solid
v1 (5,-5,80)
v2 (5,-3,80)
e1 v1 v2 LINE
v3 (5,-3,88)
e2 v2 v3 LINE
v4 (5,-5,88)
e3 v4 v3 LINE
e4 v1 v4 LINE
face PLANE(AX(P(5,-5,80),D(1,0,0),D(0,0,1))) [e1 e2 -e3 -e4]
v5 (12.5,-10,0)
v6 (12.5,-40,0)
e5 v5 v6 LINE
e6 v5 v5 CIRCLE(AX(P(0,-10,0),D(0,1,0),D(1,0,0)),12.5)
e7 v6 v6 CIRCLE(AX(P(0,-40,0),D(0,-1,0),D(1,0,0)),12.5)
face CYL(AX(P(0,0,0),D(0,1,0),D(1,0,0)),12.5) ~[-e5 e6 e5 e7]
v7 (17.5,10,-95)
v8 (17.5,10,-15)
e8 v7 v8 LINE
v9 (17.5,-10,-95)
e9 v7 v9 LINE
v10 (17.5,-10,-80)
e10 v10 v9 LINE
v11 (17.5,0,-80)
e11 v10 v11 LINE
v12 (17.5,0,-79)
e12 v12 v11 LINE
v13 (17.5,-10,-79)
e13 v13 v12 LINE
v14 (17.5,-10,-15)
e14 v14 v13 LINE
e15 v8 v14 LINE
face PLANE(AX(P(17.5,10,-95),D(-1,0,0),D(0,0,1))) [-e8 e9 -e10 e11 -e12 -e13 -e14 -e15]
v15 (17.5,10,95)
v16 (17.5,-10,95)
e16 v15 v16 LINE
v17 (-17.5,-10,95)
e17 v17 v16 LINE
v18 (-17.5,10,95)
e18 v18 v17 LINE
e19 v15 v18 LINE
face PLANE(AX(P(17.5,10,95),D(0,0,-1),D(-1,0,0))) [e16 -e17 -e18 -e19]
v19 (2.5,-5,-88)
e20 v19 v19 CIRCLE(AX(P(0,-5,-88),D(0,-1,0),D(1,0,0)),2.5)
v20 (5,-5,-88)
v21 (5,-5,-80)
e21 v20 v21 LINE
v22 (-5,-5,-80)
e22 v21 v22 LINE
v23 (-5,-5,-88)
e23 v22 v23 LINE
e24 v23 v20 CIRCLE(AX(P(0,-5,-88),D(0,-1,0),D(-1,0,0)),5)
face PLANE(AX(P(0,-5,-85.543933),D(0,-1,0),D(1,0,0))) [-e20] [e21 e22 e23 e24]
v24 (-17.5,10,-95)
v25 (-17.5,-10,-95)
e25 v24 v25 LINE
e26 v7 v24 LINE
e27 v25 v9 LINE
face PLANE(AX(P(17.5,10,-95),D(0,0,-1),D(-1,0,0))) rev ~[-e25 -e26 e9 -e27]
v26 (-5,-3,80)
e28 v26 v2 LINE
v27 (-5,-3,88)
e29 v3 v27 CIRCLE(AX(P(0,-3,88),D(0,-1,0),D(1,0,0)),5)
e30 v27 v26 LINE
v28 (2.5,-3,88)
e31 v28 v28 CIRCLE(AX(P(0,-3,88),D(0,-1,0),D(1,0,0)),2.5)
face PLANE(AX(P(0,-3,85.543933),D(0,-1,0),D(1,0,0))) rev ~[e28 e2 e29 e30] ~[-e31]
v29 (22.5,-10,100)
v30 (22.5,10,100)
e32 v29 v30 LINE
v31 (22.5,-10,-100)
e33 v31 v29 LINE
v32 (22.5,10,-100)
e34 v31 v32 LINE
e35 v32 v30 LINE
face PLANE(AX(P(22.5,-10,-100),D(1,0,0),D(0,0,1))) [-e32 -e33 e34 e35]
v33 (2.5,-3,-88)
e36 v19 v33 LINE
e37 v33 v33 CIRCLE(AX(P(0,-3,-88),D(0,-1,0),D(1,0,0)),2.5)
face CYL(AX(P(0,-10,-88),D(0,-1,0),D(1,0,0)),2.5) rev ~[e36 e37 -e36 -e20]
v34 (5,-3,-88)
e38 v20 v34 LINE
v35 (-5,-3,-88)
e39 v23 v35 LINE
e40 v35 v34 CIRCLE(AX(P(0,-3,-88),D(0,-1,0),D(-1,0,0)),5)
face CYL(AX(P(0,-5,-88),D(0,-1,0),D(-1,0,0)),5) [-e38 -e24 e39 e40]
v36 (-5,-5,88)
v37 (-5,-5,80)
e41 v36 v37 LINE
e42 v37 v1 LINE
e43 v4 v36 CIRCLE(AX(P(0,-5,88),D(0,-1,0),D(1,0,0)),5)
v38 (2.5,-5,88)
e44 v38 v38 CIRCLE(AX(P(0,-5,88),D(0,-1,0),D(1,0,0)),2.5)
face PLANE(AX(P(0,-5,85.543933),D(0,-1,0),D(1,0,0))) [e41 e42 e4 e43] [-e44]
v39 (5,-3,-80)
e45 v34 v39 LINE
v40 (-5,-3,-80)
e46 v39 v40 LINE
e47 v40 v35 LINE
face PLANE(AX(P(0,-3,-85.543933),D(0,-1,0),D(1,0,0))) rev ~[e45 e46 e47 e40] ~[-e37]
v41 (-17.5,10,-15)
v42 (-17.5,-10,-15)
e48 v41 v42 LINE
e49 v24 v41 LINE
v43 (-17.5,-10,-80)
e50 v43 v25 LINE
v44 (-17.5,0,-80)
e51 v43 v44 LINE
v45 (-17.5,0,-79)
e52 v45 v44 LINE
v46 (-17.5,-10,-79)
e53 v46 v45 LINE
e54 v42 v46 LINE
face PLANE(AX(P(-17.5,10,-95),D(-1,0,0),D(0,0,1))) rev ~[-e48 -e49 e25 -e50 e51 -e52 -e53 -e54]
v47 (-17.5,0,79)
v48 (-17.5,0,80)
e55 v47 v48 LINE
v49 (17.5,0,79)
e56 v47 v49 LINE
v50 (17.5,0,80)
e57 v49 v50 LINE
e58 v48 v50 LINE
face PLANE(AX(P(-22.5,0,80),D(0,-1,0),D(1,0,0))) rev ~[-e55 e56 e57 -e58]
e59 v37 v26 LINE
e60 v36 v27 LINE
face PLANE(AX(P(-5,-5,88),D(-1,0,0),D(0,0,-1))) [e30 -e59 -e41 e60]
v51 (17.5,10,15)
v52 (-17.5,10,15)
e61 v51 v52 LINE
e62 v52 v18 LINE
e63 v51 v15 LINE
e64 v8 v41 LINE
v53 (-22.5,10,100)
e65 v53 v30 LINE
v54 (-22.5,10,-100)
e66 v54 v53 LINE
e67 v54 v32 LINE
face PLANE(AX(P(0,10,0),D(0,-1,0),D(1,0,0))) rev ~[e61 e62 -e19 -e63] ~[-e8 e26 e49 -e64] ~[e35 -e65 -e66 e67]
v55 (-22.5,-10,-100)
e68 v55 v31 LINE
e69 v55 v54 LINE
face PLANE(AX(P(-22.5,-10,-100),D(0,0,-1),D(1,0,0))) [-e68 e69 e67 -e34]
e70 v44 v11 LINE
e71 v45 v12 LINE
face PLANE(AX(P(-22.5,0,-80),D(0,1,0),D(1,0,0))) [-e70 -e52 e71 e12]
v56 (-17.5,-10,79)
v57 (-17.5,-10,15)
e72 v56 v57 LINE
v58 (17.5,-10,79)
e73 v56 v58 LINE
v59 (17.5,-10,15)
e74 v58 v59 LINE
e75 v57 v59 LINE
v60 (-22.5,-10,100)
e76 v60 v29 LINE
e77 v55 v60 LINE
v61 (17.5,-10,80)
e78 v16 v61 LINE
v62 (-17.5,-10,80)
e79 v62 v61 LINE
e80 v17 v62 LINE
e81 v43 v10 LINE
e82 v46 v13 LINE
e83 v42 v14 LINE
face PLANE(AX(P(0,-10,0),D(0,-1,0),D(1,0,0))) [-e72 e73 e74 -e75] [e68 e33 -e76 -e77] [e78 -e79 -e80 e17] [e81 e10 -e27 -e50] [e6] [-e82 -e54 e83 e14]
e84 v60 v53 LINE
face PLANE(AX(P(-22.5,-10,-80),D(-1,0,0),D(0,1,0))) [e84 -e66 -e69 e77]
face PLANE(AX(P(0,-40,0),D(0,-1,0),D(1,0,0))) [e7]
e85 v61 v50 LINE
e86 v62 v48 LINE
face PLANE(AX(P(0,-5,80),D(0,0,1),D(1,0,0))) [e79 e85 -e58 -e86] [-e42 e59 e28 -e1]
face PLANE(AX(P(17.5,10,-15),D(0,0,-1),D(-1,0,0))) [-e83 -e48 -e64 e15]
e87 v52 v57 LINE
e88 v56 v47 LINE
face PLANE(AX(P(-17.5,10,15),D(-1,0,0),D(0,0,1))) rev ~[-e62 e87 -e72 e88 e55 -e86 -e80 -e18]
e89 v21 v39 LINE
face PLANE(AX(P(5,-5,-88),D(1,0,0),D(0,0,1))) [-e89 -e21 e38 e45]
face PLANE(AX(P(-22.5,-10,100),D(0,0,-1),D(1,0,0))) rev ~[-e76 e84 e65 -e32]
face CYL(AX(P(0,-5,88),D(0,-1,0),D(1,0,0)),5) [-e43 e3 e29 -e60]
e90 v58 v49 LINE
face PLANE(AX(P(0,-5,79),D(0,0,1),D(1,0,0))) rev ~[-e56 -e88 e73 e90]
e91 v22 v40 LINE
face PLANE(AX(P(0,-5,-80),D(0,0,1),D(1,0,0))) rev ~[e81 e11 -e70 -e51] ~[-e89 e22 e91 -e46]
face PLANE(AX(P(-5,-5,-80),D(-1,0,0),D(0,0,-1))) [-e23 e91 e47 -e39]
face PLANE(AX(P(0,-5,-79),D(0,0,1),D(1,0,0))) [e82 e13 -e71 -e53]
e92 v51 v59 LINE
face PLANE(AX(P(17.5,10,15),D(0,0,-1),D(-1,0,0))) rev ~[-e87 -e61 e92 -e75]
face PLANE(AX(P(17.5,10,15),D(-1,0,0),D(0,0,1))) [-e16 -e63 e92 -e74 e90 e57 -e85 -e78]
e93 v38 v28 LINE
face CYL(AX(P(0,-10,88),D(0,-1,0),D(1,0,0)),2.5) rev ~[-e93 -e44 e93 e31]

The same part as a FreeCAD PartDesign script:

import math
import FreeCAD as App
import Part
import Sketcher

V = App.Vector


def add_polygon(sketch, points):
    """Adds a closed chain of lines whose ends are joined by coincident constraints."""
    first, n = sketch.GeometryCount, len(points)
    for a, b in zip(points, points[1:] + points[:1]):
        sketch.addGeometry(Part.LineSegment(App.Vector(*a, 0), App.Vector(*b, 0)), False)
    for i in range(n):
        sketch.addConstraint(Sketcher.Constraint("Coincident", first + i, 2, first + (i + 1) % n, 1))

doc = App.newDocument("Part")
body = doc.addObject("PartDesign::Body", "Body")

# Sketch on XZ plane
sketch1 = body.newObject("Sketcher::SketchObject", "Sketch")
sketch1.AttachmentSupport = (doc.getObject("XZ_Plane"), [""])
sketch1.MapMode = "FlatFace"
sketch1.addGeometry(Part.Circle(V(0, 0, 0), V(0, 0, 1), 12), False)
sketch1.addConstraint([
    Sketcher.Constraint("Coincident", 0, 3, -1, 1),
    Sketcher.Constraint("Diameter", 0, 25.0),
])
pad1 = body.newObject("PartDesign::Pad", "Pad")
pad1.Profile = sketch1
pad1.Length = 40

# Sketch on XZ plane
sketch2 = body.newObject("Sketcher::SketchObject", "Sketch001")
sketch2.AttachmentSupport = (doc.getObject("XZ_Plane"), [""])
sketch2.MapMode = "FlatFace"
sketch2.AttachmentOffset = App.Placement(V(0, 0, 10), App.Rotation())
add_polygon(sketch2, [(-22, 100), (-22, -100), (22, -100), (22, 100)])  # lines 0-3
sketch2.addConstraint([
    Sketcher.Constraint("Vertical", 0),
    Sketcher.Constraint("Horizontal", 1),
    Sketcher.Constraint("Vertical", 2),
    Sketcher.Constraint("Horizontal", 3),
    Sketcher.Constraint("Symmetric", 0, 2, 2, 2, -1, 1),
    Sketcher.Constraint("DistanceX", 1, 1, 1, 2, 45.0),
    Sketcher.Constraint("DistanceY", 0, 2, 0, 1, 200.0),
])
pad2 = body.newObject("PartDesign::Pad", "Pad001")
pad2.Profile = sketch2
pad2.Length = 20
pad2.Reversed = True

# Sketch on XZ plane
sketch3 = body.newObject("Sketcher::SketchObject", "Sketch002")
sketch3.AttachmentSupport = (doc.getObject("XZ_Plane"), [""])
sketch3.MapMode = "FlatFace"
sketch3.AttachmentOffset = App.Placement(V(0, 0, -10), App.Rotation())
add_polygon(sketch3, [(18, 95), (18, 15), (-18, 15), (-18, 95)])  # lines 0-3
add_polygon(sketch3, [(18, -15), (18, -95), (-18, -95), (-18, -15)])  # lines 4-7
sketch3.addConstraint([
    Sketcher.Constraint("Vertical", 0),
    Sketcher.Constraint("Horizontal", 1),
    Sketcher.Constraint("Vertical", 2),
    Sketcher.Constraint("Horizontal", 3),
    Sketcher.Constraint("Vertical", 4),
    Sketcher.Constraint("Horizontal", 5),
    Sketcher.Constraint("Vertical", 6),
    Sketcher.Constraint("Horizontal", 7),
    Sketcher.Constraint("Symmetric", 2, 2, 4, 2, -1, 1),
    Sketcher.Constraint("Symmetric", 0, 2, 6, 2, -1, 1),
    Sketcher.Constraint("Vertical", 3, 2, 4, 2),
    Sketcher.Constraint("DistanceX", 1, 2, 1, 1, 35.0),
    Sketcher.Constraint("DistanceY", 0, 2, 0, 1, 80.0),
    Sketcher.Constraint("DistanceY", -1, 1, 0, 2, 15.0),
])
pocket1 = body.newObject("PartDesign::Pocket", "Pocket")
pocket1.Profile = sketch3
pocket1.Length = 25
pocket1.Reversed = True

# Sketch on XY plane
sketch4 = body.newObject("Sketcher::SketchObject", "Sketch003")
sketch4.AttachmentSupport = (doc.getObject("XY_Plane"), [""])
sketch4.MapMode = "FlatFace"
sketch4.AttachmentOffset = App.Placement(V(0, 0, 80), App.Rotation())
add_polygon(sketch4, [(-22, 0), (-22, -10), (22, -10), (22, 0)])  # lines 0-3
sketch4.addConstraint([
    Sketcher.Constraint("Vertical", 0),
    Sketcher.Constraint("Horizontal", 1),
    Sketcher.Constraint("Vertical", 2),
    Sketcher.Constraint("Horizontal", 3),
    Sketcher.Constraint("Symmetric", 2, 2, 3, 2, -1, 1),
    Sketcher.Constraint("DistanceX", 1, 1, 1, 2, 45.0),
    Sketcher.Constraint("DistanceY", 0, 2, 0, 1, 10.0),
])
pad3 = body.newObject("PartDesign::Pad", "Pad002")
pad3.Profile = sketch4
pad3.Length = 1
pad3.Reversed = True

# Sketch on XY plane
sketch5 = body.newObject("Sketcher::SketchObject", "Sketch004")
sketch5.AttachmentSupport = (doc.getObject("XY_Plane"), [""])
sketch5.MapMode = "FlatFace"
sketch5.AttachmentOffset = App.Placement(V(0, 0, -80), App.Rotation())
add_polygon(sketch5, [(-22, 0), (-22, -10), (22, -10), (22, 0)])  # lines 0-3
sketch5.addConstraint([
    Sketcher.Constraint("Vertical", 0),
    Sketcher.Constraint("Horizontal", 1),
    Sketcher.Constraint("Vertical", 2),
    Sketcher.Constraint("Horizontal", 3),
    Sketcher.Constraint("Symmetric", 2, 2, 3, 2, -1, 1),
    Sketcher.Constraint("DistanceX", 1, 1, 1, 2, 45.0),
    Sketcher.Constraint("DistanceY", 0, 2, 0, 1, 10.0),
])
pad4 = body.newObject("PartDesign::Pad", "Pad003")
pad4.Profile = sketch5
pad4.Length = 1
body2 = doc.addObject("PartDesign::Body", "Body001")
body2.AllowCompound = True

# Sketch on XZ plane
sketch6 = body2.newObject("Sketcher::SketchObject", "Sketch005")
sketch6.AttachmentSupport = (doc.getObject("XZ_Plane001"), [""])
sketch6.MapMode = "FlatFace"
sketch6.AttachmentOffset = App.Placement(V(0, 0, 5), App.Rotation())
sketch6.addGeometry([
    Part.LineSegment(V(-5, 88, 0), V(-5, 80, 0)),  # 0
    Part.LineSegment(V(-5, 80, 0), V(5, 80, 0)),  # 1
    Part.LineSegment(V(5, 80, 0), V(5, 88, 0)),  # 2
    Part.ArcOfCircle(Part.Circle(V(0, 88, 0), V(0, 0, 1), 5), math.radians(0), math.radians(180)),  # 3
    Part.LineSegment(V(5, -80, 0), V(-5, -80, 0)),  # 4
    Part.LineSegment(V(-5, -80, 0), V(-5, -88, 0)),  # 5
    Part.ArcOfCircle(Part.Circle(V(0, -88, 0), V(0, 0, 1), 5), math.radians(180), math.radians(360)),  # 6
    Part.LineSegment(V(5, -88, 0), V(5, -80, 0)),  # 7
], False)
sketch6.addConstraint([
    Sketcher.Constraint("Coincident", 0, 2, 1, 1),
    Sketcher.Constraint("Coincident", 1, 2, 2, 1),
    Sketcher.Constraint("Tangent", 2, 2, 3, 1),
    Sketcher.Constraint("Tangent", 3, 2, 0, 1),
    Sketcher.Constraint("Coincident", 4, 2, 5, 1),
    Sketcher.Constraint("Tangent", 5, 2, 6, 1),
    Sketcher.Constraint("Tangent", 6, 2, 7, 1),
    Sketcher.Constraint("Coincident", 7, 2, 4, 1),
    Sketcher.Constraint("Vertical", 0),
    Sketcher.Constraint("Horizontal", 1),
    Sketcher.Constraint("Vertical", 2),
    Sketcher.Constraint("Horizontal", 4),
    Sketcher.Constraint("Vertical", 5),
    Sketcher.Constraint("Vertical", 7),
    Sketcher.Constraint("Equal", 3, 6),
    Sketcher.Constraint("Symmetric", 3, 3, 6, 3, -1, 1),
    Sketcher.Constraint("Symmetric", 0, 2, 4, 2, -1),
    Sketcher.Constraint("Radius", 3, 5.0),
    Sketcher.Constraint("DistanceY", 0, 2, 0, 1, 8.0),
    Sketcher.Constraint("DistanceY", -1, 1, 3, 3, 88.0),
])
pad5 = body2.newObject("PartDesign::Pad", "Pad004")
pad5.Profile = sketch6
pad5.Length = 2
pad5.Reversed = True
doc.recompute()

boolean = body.newObject("PartDesign::Boolean", "Boolean")
boolean.Type = "Fuse"
boolean.addObjects([body2])

# Sketch on XZ plane
sketch7 = body.newObject("Sketcher::SketchObject", "Sketch006")
sketch7.AttachmentSupport = (doc.getObject("XZ_Plane"), [""])
sketch7.MapMode = "FlatFace"
sketch7.AttachmentOffset = App.Placement(V(0, 0, 10), App.Rotation())
sketch7.addGeometry([
    Part.Circle(V(0, -88, 0), V(0, 0, 1), 2.5),
    Part.Circle(V(0, 88, 0), V(0, 0, 1), 2.5),
], False)
sketch7.addConstraint([
    Sketcher.Constraint("Equal", 0, 1),
    Sketcher.Constraint("Symmetric", 0, 3, 1, 3, -1, 1),
    Sketcher.Constraint("PointOnObject", 0, 3, -2),
    Sketcher.Constraint("Diameter", 0, 5.0),
    Sketcher.Constraint("DistanceY", 0, 3, -1, 1, 88.0),
])
pocket2 = body.newObject("PartDesign::Pocket", "Pocket001")
pocket2.Profile = sketch7
pocket2.Type = "ThroughAll"

doc.recompute()
